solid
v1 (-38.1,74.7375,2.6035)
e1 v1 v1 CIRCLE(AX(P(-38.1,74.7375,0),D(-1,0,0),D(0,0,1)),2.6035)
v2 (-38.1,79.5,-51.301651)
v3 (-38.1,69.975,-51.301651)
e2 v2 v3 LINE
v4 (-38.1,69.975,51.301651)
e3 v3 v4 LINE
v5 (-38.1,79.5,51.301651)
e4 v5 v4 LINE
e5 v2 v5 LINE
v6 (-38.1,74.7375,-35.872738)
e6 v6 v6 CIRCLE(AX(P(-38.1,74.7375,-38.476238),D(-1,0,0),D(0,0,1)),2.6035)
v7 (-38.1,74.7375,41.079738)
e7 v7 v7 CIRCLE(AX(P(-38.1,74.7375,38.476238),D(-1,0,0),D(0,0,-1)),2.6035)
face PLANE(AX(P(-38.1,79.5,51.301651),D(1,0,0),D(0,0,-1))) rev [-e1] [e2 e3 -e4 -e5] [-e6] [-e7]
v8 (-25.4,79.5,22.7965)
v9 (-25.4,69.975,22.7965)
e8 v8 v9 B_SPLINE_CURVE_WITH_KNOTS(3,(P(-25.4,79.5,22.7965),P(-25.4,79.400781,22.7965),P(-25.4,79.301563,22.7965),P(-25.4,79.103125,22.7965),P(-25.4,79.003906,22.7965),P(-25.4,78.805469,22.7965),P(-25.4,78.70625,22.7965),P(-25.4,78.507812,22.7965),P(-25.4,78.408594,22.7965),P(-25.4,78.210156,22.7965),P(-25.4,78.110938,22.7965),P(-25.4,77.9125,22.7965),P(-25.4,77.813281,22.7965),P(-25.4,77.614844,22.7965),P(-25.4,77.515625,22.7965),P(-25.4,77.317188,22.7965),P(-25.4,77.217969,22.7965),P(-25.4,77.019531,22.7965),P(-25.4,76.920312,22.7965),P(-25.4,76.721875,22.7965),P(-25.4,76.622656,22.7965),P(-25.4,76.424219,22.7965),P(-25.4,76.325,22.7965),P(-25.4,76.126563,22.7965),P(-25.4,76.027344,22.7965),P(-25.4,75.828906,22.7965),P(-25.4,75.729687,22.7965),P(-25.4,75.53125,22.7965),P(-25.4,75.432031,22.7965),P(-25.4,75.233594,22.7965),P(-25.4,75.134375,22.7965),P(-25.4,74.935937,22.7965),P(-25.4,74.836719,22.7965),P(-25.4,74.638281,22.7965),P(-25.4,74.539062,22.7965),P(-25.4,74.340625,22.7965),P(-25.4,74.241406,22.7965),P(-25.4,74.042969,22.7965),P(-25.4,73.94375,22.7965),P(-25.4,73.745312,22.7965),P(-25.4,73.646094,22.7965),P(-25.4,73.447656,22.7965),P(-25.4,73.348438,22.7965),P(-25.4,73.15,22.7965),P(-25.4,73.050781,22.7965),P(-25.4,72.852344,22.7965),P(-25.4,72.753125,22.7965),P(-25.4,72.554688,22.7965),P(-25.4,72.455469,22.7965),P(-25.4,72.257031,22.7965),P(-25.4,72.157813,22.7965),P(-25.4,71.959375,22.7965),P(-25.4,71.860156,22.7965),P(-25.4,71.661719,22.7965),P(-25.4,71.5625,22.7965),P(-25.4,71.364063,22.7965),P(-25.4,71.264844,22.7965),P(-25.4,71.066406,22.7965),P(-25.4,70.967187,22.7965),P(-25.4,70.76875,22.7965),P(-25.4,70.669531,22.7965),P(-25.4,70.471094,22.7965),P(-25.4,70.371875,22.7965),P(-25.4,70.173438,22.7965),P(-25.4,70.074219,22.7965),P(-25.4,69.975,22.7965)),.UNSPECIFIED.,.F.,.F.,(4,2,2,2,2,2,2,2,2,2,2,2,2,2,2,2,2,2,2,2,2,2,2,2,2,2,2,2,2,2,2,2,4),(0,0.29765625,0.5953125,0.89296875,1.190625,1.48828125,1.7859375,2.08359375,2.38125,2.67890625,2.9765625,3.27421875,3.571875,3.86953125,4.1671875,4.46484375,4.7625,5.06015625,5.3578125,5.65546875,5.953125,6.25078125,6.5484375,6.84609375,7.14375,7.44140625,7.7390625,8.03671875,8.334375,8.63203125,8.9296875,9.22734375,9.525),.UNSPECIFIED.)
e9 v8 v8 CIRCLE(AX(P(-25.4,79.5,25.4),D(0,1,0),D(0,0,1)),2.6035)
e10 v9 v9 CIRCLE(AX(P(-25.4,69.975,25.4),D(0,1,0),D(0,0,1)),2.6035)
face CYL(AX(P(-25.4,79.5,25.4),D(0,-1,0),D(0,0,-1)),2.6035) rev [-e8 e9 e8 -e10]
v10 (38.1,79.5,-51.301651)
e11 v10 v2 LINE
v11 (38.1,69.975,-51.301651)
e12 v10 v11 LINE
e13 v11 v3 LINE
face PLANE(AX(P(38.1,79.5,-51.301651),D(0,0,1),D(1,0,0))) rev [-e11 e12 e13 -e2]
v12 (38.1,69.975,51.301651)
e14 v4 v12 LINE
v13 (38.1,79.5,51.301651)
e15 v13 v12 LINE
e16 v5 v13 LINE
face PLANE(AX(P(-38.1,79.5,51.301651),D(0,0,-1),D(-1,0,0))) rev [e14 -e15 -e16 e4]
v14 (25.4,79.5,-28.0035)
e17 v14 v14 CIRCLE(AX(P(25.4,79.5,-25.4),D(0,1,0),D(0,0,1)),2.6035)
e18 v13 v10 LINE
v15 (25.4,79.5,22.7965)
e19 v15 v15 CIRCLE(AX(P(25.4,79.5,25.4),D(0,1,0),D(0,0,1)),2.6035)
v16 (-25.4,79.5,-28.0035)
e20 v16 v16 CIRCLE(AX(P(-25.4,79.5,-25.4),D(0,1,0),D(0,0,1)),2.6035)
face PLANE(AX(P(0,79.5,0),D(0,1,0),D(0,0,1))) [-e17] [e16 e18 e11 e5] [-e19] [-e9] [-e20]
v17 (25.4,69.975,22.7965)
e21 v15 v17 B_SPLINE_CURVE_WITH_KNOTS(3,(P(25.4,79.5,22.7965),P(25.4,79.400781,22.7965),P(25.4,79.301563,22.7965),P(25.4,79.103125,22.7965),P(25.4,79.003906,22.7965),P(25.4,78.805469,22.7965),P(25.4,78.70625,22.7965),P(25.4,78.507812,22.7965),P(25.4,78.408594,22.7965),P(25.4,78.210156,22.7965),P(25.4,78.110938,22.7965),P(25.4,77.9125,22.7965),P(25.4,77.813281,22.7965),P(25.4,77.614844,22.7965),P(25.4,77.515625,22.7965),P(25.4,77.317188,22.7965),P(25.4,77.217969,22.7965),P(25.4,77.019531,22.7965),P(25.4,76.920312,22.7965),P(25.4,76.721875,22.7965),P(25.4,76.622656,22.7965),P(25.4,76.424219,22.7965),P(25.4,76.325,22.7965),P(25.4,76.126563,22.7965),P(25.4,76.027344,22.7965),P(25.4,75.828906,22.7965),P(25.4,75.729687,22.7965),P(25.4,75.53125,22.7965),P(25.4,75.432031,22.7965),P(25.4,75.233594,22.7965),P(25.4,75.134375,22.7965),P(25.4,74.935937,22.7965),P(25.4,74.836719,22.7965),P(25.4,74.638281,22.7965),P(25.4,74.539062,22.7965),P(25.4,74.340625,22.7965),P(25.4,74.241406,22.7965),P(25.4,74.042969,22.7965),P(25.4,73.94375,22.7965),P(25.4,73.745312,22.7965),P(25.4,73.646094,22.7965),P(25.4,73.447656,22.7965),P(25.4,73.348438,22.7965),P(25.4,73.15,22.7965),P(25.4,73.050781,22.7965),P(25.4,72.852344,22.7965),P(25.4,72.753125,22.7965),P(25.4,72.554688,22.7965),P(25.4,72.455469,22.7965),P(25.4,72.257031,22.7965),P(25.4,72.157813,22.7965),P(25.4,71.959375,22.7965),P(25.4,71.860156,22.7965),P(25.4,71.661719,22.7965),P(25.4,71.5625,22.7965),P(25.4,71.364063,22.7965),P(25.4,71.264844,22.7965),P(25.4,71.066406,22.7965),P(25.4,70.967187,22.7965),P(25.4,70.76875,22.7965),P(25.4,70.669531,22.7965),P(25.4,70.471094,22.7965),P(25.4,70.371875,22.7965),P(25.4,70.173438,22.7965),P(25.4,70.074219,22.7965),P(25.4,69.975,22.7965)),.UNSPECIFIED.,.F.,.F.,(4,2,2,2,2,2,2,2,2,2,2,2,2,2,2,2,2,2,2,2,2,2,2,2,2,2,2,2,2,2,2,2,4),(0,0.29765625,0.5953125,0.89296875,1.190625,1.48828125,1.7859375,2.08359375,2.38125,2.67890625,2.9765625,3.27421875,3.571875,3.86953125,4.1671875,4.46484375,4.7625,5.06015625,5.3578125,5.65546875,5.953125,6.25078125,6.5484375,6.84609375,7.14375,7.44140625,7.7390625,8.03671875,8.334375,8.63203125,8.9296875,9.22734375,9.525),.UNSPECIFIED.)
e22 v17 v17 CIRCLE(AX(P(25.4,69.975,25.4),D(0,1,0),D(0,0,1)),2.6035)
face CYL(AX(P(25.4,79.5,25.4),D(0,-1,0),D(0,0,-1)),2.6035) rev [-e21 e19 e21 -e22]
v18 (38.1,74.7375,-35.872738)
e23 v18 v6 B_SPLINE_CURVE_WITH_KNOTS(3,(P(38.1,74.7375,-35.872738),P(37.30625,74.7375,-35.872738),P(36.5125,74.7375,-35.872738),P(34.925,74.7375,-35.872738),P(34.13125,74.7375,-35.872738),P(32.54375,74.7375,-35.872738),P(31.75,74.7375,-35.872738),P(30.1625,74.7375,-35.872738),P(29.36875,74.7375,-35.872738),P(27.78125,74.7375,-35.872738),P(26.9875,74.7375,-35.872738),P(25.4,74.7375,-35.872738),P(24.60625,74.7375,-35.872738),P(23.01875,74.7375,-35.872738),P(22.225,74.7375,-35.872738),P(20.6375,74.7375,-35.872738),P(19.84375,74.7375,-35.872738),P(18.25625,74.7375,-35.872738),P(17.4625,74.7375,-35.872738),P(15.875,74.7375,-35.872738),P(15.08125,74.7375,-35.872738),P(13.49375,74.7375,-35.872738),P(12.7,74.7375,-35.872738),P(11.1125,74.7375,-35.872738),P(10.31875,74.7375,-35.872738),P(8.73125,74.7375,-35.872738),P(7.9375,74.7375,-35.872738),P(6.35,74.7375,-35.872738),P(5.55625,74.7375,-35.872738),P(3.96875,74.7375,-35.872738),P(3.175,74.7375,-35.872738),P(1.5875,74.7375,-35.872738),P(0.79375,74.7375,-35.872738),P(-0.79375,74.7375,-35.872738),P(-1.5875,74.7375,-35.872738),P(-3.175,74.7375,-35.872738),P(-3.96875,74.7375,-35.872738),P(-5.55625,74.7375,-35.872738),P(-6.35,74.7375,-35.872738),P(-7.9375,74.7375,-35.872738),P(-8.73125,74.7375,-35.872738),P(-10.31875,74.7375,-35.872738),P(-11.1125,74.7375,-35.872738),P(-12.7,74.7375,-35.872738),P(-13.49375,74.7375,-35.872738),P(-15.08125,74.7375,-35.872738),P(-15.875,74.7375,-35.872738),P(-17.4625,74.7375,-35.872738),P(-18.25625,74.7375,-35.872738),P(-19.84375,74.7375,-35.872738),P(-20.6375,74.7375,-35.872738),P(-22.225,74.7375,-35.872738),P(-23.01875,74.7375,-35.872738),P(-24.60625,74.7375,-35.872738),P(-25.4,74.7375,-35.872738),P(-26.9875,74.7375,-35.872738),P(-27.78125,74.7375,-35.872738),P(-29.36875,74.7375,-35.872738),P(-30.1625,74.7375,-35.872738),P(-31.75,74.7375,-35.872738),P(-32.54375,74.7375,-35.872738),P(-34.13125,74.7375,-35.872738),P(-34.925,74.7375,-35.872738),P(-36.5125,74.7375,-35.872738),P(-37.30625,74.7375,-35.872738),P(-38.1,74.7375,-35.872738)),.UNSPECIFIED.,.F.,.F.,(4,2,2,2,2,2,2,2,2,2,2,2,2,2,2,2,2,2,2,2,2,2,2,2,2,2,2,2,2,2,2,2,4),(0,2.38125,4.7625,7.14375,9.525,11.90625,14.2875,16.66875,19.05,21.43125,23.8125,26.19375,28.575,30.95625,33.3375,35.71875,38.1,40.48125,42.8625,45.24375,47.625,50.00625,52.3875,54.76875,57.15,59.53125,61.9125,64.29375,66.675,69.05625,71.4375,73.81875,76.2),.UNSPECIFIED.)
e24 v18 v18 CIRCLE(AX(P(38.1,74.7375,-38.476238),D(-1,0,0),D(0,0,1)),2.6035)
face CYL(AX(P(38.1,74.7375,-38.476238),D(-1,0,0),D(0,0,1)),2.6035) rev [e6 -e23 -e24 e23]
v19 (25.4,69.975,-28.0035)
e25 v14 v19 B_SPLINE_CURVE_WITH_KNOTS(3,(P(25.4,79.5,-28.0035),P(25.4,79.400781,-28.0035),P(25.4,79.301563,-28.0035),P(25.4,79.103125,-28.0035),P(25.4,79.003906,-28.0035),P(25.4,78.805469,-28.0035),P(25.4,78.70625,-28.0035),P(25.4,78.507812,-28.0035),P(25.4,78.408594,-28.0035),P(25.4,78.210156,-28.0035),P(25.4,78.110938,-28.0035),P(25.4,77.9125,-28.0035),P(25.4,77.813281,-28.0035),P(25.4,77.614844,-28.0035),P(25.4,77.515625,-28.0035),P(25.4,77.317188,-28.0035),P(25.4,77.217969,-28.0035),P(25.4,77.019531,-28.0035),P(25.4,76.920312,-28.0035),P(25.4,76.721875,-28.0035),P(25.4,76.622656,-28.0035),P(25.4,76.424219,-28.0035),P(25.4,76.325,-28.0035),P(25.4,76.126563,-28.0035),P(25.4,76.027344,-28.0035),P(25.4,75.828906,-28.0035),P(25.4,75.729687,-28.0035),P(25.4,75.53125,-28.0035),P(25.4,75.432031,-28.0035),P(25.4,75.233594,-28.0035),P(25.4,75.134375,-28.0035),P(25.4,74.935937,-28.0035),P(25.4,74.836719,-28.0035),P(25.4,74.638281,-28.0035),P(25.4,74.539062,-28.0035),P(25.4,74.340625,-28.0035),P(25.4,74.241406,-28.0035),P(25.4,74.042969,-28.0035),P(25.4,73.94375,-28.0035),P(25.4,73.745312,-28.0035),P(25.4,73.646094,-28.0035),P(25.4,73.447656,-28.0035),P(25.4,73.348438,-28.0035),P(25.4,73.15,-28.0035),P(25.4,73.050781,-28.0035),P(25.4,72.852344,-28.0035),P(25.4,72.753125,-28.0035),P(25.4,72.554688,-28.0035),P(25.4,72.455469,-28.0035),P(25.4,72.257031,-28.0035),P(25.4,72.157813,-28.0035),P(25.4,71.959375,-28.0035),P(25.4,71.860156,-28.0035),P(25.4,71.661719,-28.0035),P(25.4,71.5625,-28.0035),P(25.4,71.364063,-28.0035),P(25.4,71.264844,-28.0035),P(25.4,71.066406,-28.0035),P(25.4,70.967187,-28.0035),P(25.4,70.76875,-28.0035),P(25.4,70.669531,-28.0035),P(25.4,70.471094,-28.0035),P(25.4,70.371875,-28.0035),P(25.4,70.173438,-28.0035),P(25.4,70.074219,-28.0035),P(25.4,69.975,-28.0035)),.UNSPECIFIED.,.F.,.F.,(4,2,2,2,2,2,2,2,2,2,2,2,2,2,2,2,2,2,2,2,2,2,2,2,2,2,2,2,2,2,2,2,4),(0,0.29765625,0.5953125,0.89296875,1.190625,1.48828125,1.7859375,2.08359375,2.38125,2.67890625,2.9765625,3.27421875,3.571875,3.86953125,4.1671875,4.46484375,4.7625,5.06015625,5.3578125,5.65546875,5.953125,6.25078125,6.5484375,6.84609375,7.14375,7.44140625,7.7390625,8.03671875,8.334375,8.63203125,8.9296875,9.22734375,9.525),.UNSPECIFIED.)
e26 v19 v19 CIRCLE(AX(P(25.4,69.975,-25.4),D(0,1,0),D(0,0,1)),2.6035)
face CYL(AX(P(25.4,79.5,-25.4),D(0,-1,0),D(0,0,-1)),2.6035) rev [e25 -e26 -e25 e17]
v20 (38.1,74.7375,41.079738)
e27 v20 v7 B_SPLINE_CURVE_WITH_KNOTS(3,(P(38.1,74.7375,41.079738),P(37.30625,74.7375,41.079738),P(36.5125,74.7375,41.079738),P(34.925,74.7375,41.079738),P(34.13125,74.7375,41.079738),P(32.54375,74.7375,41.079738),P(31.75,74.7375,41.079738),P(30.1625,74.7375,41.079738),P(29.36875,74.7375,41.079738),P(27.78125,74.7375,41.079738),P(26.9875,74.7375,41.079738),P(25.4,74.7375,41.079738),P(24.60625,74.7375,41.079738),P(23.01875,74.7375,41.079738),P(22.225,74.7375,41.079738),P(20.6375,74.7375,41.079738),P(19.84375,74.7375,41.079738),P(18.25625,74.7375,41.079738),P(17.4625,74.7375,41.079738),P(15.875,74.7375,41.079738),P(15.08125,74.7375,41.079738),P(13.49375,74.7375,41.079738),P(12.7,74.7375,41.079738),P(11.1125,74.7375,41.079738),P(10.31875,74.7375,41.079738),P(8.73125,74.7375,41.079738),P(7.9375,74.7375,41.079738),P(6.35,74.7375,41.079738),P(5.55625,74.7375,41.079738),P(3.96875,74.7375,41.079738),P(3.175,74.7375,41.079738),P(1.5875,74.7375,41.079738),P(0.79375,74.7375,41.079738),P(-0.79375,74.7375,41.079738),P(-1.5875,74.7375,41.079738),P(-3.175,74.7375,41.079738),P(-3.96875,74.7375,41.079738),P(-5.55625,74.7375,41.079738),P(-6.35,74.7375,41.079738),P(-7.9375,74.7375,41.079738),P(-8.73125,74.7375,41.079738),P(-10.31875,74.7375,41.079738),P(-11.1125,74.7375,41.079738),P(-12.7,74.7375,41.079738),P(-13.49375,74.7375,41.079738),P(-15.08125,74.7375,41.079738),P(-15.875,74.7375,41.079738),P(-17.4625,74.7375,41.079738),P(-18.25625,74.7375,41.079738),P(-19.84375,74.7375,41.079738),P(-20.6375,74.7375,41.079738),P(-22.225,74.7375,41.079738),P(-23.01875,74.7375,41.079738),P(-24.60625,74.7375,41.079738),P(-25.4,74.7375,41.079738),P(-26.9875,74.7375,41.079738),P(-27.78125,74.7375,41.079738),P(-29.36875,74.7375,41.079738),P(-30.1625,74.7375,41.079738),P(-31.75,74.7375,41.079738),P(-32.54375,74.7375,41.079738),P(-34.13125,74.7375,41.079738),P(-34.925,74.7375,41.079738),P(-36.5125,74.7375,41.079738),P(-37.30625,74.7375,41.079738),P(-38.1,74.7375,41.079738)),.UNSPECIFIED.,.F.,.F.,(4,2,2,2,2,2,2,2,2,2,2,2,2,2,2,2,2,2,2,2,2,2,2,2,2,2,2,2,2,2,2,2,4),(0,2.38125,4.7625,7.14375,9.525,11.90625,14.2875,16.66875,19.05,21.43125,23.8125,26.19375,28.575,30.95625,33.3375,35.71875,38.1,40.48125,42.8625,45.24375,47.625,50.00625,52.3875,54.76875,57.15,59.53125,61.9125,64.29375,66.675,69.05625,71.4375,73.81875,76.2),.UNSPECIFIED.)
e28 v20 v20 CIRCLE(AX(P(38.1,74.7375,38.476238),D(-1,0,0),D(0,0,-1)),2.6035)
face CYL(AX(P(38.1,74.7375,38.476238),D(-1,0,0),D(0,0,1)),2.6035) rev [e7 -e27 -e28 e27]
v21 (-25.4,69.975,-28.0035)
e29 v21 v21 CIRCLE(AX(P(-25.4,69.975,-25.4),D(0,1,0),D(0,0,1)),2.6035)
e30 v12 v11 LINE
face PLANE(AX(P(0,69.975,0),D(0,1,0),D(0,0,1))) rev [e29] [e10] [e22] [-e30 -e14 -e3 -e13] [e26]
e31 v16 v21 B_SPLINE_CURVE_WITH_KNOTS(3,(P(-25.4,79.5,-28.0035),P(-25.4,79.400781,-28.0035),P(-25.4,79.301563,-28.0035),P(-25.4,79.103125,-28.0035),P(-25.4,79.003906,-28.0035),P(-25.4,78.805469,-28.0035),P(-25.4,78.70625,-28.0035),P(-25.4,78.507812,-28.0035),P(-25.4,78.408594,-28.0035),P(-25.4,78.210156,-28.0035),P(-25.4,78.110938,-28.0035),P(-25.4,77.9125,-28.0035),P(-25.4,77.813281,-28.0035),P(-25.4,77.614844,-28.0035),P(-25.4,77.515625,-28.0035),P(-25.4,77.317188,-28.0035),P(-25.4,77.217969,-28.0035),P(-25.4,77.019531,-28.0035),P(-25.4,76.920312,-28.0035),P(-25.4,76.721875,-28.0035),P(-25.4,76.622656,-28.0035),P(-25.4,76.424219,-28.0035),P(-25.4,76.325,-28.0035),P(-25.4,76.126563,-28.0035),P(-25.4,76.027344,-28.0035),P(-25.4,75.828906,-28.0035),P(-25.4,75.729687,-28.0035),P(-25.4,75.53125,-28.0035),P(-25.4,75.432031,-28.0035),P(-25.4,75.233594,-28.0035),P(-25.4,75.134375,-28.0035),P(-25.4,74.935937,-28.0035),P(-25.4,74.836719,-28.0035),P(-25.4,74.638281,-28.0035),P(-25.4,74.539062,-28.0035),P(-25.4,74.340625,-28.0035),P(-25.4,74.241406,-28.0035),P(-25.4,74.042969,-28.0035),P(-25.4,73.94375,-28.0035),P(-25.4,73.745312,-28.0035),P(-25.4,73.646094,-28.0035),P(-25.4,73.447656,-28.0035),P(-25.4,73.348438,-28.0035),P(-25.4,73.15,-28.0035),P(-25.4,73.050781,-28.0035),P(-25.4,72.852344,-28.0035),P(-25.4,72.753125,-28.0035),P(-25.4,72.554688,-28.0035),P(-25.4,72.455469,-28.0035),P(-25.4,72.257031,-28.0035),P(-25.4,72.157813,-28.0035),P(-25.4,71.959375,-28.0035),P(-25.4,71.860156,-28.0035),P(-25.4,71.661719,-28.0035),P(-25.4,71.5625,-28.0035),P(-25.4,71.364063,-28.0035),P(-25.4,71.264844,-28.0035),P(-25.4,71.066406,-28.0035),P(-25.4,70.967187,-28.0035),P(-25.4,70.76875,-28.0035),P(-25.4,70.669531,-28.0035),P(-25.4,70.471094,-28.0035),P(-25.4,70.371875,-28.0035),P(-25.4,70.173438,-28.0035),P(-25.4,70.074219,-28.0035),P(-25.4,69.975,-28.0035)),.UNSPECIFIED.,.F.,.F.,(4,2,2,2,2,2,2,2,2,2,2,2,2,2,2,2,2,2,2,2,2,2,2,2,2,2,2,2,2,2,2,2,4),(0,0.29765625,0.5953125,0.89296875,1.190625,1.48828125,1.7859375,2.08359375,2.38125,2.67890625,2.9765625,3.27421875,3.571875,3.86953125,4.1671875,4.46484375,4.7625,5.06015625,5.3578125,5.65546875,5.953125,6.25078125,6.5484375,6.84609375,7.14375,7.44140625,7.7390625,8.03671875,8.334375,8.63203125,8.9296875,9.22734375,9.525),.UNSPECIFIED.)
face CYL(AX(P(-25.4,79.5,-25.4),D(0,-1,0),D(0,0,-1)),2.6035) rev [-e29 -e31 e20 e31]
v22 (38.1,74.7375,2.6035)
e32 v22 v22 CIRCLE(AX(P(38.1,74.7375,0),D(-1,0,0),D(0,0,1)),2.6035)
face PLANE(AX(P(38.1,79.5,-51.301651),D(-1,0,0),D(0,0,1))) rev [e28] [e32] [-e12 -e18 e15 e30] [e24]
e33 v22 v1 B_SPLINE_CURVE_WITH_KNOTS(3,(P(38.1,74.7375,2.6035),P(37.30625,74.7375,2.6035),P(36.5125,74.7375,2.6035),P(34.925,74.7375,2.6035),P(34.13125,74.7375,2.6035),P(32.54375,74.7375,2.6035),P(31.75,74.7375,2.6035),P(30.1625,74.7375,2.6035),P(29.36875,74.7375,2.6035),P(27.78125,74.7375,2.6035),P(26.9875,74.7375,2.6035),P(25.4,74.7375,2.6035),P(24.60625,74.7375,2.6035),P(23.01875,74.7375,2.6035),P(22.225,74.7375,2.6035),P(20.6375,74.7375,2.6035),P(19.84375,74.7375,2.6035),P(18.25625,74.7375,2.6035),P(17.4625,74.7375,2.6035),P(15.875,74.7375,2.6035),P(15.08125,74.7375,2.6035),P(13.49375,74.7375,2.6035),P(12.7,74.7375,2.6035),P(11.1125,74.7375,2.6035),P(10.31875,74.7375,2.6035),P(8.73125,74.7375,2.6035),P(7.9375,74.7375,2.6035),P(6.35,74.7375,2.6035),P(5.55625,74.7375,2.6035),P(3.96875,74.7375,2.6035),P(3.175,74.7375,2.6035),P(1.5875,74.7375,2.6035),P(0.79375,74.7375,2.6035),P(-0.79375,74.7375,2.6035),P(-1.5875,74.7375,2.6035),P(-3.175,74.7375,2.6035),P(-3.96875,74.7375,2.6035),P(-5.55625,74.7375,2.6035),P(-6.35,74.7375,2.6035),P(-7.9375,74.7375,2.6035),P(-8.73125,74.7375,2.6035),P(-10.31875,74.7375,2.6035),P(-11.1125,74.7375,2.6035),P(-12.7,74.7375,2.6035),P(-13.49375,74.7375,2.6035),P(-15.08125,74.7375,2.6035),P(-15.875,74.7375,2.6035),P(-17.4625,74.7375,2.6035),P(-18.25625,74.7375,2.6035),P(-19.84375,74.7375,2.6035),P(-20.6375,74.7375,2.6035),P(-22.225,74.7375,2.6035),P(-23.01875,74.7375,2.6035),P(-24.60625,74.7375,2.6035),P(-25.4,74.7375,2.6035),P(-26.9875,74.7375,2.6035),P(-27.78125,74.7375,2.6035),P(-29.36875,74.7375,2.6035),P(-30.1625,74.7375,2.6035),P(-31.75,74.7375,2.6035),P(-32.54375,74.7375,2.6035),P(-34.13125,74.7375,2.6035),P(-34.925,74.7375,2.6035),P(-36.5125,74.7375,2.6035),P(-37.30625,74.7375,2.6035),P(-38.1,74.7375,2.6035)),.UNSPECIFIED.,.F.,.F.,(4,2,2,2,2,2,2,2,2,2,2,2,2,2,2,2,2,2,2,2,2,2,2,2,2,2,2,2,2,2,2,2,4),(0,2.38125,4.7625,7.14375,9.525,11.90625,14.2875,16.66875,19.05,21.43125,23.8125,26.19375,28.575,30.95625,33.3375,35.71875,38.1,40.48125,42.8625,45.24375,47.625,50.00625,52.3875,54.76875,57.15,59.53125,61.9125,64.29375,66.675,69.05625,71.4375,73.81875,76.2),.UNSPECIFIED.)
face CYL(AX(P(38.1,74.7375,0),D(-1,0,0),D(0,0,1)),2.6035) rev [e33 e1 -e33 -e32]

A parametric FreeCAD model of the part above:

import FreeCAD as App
import Part
import Sketcher
Q = App.Units.Quantity

doc = App.newDocument("Part")
body = doc.addObject("PartDesign::Body", "Body")

# Sketch on XZ plane
sketch1 = body.newObject("Sketcher::SketchObject", "Sketch")
sketch1.AttachmentSupport = (doc.getObject("XZ_Plane"), [""])
sketch1.MapMode = "FlatFace"
sketch1.AttachmentOffset = App.Placement(App.Vector(0, 0, -69.975), App.Rotation())
sketch1.addGeometry([
    Part.LineSegment(App.Vector(-38.1, -51.3, 0), App.Vector(-38.1, 51.3, 0)),  # 0
    Part.LineSegment(App.Vector(-38.1, 51.3, 0), App.Vector(38.1, 51.3, 0)),  # 1
    Part.LineSegment(App.Vector(38.1, 51.3, 0), App.Vector(38.1, -51.3, 0)),  # 2
    Part.LineSegment(App.Vector(38.1, -51.3, 0), App.Vector(-38.1, -51.3, 0)),  # 3
    Part.Circle(App.Vector(-25.4, 25.4, 0), App.Vector(0, 0, 1), 2.6),  # 4
    Part.Circle(App.Vector(25.4, 25.4, 0), App.Vector(0, 0, 1), 2.6),  # 5
    Part.Circle(App.Vector(-25.4, -25.4, 0), App.Vector(0, 0, 1), 2.6),  # 6
    Part.Circle(App.Vector(25.4, -25.4, 0), App.Vector(0, 0, 1), 2.6),  # 7
], False)
sketch1.addConstraint([
    Sketcher.Constraint("Coincident", 0, 2, 1, 1),
    Sketcher.Constraint("Coincident", 1, 2, 2, 1),
    Sketcher.Constraint("Coincident", 2, 2, 3, 1),
    Sketcher.Constraint("Coincident", 3, 2, 0, 1),
    Sketcher.Constraint("Vertical", 0),
    Sketcher.Constraint("Horizontal", 1),
    Sketcher.Constraint("Vertical", 2),
    Sketcher.Constraint("Horizontal", 3),
    Sketcher.Constraint("Equal", 4, 5),
    Sketcher.Constraint("Equal", 5, 6),
    Sketcher.Constraint("Equal", 6, 7),
    Sketcher.Constraint("Symmetric", 5, 3, 6, 3, -1, 1),
    Sketcher.Constraint("Symmetric", 4, 3, 7, 3, -1, 1),
    Sketcher.Constraint("Symmetric", 0, 2, 2, 2, -1, 1),
    Sketcher.Constraint("Symmetric", 4, 3, 5, 3, -2),
    Sketcher.Constraint("DistanceX", 1, 1, 1, 2, Q("3 in")),
    Sketcher.Constraint("Diameter", 4, Q("0.205 in")),
    Sketcher.Constraint("DistanceX", 4, 3, -1, 1, Q("1 in")),
    Sketcher.Constraint("DistanceY", -1, 1, 4, 3, Q("1 in")),
    Sketcher.Constraint("DistanceY", 0, 1, 0, 2, Q("4.0395001 in")),
])
pad1 = body.newObject("PartDesign::Pad", "Pad")
pad1.Profile = sketch1
pad1.Length = Q("0.375 in")
pad1.Reversed = True

# Sketch on YZ plane
sketch2 = body.newObject("Sketcher::SketchObject", "Sketch001")
sketch2.AttachmentSupport = (doc.getObject("YZ_Plane"), [""])
sketch2.MapMode = "FlatFace"
sketch2.AttachmentOffset = App.Placement(App.Vector(0, 0, -1.5 * 25.4), App.Rotation())
sketch2.addGeometry([
    Part.Circle(App.Vector(74.7, 0, 0), App.Vector(0, 0, 1), 2.6),
    Part.Circle(App.Vector(74.7, -38.5, 0), App.Vector(0, 0, 1), 2.6),
    Part.Circle(App.Vector(74.7, 38.5, 0), App.Vector(0, 0, 1), 2.6),
], False)
sketch2.addConstraint([
    Sketcher.Constraint("Equal", 0, 1),
    Sketcher.Constraint("Equal", 1, 2),
    Sketcher.Constraint("Symmetric", 1, 3, 2, 3, -1),
    Sketcher.Constraint("PointOnObject", 0, 3, -1),
    Sketcher.Constraint("Vertical", 0, 3, 1, 3),
    Sketcher.Constraint("Diameter", 0, Q("0.205 in")),
    Sketcher.Constraint("DistanceX", -1, 1, 0, 3, 74.7375),
    Sketcher.Constraint("DistanceY", 1, 3, -1, 1, 38.476238),
])
pocket1 = body.newObject("PartDesign::Pocket", "Pocket")
pocket1.Profile = sketch2
pocket1.Type = "ThroughAll"
pocket1.Reversed = True

doc.recompute()
